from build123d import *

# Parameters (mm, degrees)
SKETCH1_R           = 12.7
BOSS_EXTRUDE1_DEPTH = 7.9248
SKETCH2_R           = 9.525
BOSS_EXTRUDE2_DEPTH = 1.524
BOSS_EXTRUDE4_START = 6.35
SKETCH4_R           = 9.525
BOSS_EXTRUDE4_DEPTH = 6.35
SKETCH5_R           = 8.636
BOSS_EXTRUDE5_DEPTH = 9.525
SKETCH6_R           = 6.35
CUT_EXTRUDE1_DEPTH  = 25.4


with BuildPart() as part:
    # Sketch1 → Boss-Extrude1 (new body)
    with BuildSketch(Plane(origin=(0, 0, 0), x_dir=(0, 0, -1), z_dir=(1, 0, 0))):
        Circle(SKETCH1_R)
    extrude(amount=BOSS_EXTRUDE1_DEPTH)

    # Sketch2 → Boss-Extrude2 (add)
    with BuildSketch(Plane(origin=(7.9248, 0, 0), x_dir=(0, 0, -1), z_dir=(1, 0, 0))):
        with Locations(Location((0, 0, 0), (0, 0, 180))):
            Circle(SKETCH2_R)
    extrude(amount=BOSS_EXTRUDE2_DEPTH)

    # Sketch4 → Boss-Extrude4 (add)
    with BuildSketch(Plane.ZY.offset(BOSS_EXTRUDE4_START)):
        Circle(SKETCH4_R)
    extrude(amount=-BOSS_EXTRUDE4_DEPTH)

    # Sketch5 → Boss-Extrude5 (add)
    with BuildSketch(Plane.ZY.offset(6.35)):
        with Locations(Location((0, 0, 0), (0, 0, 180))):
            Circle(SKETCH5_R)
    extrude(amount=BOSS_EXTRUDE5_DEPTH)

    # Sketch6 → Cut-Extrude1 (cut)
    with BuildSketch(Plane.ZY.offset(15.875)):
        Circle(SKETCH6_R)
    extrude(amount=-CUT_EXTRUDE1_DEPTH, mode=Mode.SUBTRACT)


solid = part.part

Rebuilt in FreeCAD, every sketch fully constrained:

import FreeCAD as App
import Part
import Sketcher

V = App.Vector
Q = App.Units.Quantity

doc = App.newDocument("Part")
params = doc.addObject("Spreadsheet::Sheet", "Params")
for row, (alias, value) in enumerate([
    ("sketch1_diameter", "1 in"),
    ("pad1_length", "0.312 in"),
    ("sketch2_diameter", "0.75 in"),
    ("pad2_length", "0.06 in"),
    ("sketch3_diameter", "0.75 in"),
    ("pad3_length", "0.25 in"),
    ("sketch4_diameter", "0.68 in"),
    ("pad4_length", "0.375 in"),
    ("sketch5_diameter", "0.5 in"),
    ("pocket1_length", "1 in"),
], start=1):
    params.set(f"A{row}", alias)
    params.set(f"B{row}", "=" + value)
    params.setAlias(f"B{row}", alias)

body = doc.addObject("PartDesign::Body", "Body")

# Sketch on YZ plane
sketch1 = doc.addObject("Sketcher::SketchObject", "Sketch")
body.addObject(sketch1)
sketch1.AttachmentSupport = (doc.YZ_Plane, [""])
sketch1.MapMode = "FlatFace"
sketch1.addGeometry(Part.Circle(V(0, 0, 0), V(0, 0, 1), 13), False)
sketch1.addConstraint([
    Sketcher.Constraint("Coincident", 0, 3, -1, 1),
    Sketcher.Constraint("Diameter", 0, Q("1 in")),
])
sketch1.setExpression("Constraints[1]", "Params.sketch1_diameter")
pad1 = doc.addObject("PartDesign::Pad", "Pad")
body.addObject(pad1)
pad1.Profile = sketch1
pad1.setExpression("Length", "Params.pad1_length")

# Sketch on YZ plane
sketch2 = doc.addObject("Sketcher::SketchObject", "Sketch001")
body.addObject(sketch2)
sketch2.AttachmentSupport = (doc.YZ_Plane, [""])
sketch2.MapMode = "FlatFace"
sketch2.AttachmentOffset = App.Placement(V(0, 0, 0.312 * 25.4), App.Rotation())
sketch2.addGeometry(Part.Circle(V(0, 0, 0), V(0, 0, 1), 10), False)
sketch2.addConstraint([
    Sketcher.Constraint("Coincident", 0, 3, -1, 1),
    Sketcher.Constraint("Diameter", 0, Q("0.75 in")),
])
sketch2.setExpression("Constraints[1]", "Params.sketch2_diameter")
pad2 = doc.addObject("PartDesign::Pad", "Pad001")
body.addObject(pad2)
pad2.Profile = sketch2
pad2.setExpression("Length", "Params.pad2_length")

# Sketch on YZ plane
sketch3 = doc.addObject("Sketcher::SketchObject", "Sketch002")
body.addObject(sketch3)
sketch3.AttachmentSupport = (doc.YZ_Plane, [""])
sketch3.MapMode = "FlatFace"
sketch3.AttachmentOffset = App.Placement(V(0, 0, -0.25 * 25.4), App.Rotation())
sketch3.addGeometry(Part.Circle(V(0, 0, 0), V(0, 0, 1), 10), False)
sketch3.addConstraint([
    Sketcher.Constraint("Coincident", 0, 3, -1, 1),
    Sketcher.Constraint("Diameter", 0, Q("0.75 in")),
])
sketch3.setExpression("Constraints[1]", "Params.sketch3_diameter")
pad3 = doc.addObject("PartDesign::Pad", "Pad002")
body.addObject(pad3)
pad3.Profile = sketch3
pad3.setExpression("Length", "Params.pad3_length")

# Sketch on YZ plane
sketch4 = doc.addObject("Sketcher::SketchObject", "Sketch003")
body.addObject(sketch4)
sketch4.AttachmentSupport = (doc.YZ_Plane, [""])
sketch4.MapMode = "FlatFace"
sketch4.AttachmentOffset = App.Placement(V(0, 0, -0.25 * 25.4), App.Rotation())
sketch4.addGeometry(Part.Circle(V(0, 0, 0), V(0, 0, 1), 9), False)
sketch4.addConstraint([
    Sketcher.Constraint("Coincident", 0, 3, -1, 1),
    Sketcher.Constraint("Diameter", 0, Q("0.68 in")),
])
sketch4.setExpression("Constraints[1]", "Params.sketch4_diameter")
pad4 = doc.addObject("PartDesign::Pad", "Pad003")
body.addObject(pad4)
pad4.Profile = sketch4
pad4.setExpression("Length", "Params.pad4_length")
pad4.Reversed = True

# Sketch on YZ plane
sketch5 = doc.addObject("Sketcher::SketchObject", "Sketch004")
body.addObject(sketch5)
sketch5.AttachmentSupport = (doc.YZ_Plane, [""])
sketch5.MapMode = "FlatFace"
sketch5.AttachmentOffset = App.Placement(V(0, 0, -0.625 * 25.4), App.Rotation())
sketch5.addGeometry(Part.Circle(V(0, 0, 0), V(0, 0, 1), 6), False)
sketch5.addConstraint([
    Sketcher.Constraint("Coincident", 0, 3, -1, 1),
    Sketcher.Constraint("Diameter", 0, Q("0.5 in")),
])
sketch5.setExpression("Constraints[1]", "Params.sketch5_diameter")
pocket1 = doc.addObject("PartDesign::Pocket", "Pocket")
body.addObject(pocket1)
pocket1.Profile = sketch5
pocket1.setExpression("Length", "Params.pocket1_length")
pocket1.Reversed = True

doc.recompute()
